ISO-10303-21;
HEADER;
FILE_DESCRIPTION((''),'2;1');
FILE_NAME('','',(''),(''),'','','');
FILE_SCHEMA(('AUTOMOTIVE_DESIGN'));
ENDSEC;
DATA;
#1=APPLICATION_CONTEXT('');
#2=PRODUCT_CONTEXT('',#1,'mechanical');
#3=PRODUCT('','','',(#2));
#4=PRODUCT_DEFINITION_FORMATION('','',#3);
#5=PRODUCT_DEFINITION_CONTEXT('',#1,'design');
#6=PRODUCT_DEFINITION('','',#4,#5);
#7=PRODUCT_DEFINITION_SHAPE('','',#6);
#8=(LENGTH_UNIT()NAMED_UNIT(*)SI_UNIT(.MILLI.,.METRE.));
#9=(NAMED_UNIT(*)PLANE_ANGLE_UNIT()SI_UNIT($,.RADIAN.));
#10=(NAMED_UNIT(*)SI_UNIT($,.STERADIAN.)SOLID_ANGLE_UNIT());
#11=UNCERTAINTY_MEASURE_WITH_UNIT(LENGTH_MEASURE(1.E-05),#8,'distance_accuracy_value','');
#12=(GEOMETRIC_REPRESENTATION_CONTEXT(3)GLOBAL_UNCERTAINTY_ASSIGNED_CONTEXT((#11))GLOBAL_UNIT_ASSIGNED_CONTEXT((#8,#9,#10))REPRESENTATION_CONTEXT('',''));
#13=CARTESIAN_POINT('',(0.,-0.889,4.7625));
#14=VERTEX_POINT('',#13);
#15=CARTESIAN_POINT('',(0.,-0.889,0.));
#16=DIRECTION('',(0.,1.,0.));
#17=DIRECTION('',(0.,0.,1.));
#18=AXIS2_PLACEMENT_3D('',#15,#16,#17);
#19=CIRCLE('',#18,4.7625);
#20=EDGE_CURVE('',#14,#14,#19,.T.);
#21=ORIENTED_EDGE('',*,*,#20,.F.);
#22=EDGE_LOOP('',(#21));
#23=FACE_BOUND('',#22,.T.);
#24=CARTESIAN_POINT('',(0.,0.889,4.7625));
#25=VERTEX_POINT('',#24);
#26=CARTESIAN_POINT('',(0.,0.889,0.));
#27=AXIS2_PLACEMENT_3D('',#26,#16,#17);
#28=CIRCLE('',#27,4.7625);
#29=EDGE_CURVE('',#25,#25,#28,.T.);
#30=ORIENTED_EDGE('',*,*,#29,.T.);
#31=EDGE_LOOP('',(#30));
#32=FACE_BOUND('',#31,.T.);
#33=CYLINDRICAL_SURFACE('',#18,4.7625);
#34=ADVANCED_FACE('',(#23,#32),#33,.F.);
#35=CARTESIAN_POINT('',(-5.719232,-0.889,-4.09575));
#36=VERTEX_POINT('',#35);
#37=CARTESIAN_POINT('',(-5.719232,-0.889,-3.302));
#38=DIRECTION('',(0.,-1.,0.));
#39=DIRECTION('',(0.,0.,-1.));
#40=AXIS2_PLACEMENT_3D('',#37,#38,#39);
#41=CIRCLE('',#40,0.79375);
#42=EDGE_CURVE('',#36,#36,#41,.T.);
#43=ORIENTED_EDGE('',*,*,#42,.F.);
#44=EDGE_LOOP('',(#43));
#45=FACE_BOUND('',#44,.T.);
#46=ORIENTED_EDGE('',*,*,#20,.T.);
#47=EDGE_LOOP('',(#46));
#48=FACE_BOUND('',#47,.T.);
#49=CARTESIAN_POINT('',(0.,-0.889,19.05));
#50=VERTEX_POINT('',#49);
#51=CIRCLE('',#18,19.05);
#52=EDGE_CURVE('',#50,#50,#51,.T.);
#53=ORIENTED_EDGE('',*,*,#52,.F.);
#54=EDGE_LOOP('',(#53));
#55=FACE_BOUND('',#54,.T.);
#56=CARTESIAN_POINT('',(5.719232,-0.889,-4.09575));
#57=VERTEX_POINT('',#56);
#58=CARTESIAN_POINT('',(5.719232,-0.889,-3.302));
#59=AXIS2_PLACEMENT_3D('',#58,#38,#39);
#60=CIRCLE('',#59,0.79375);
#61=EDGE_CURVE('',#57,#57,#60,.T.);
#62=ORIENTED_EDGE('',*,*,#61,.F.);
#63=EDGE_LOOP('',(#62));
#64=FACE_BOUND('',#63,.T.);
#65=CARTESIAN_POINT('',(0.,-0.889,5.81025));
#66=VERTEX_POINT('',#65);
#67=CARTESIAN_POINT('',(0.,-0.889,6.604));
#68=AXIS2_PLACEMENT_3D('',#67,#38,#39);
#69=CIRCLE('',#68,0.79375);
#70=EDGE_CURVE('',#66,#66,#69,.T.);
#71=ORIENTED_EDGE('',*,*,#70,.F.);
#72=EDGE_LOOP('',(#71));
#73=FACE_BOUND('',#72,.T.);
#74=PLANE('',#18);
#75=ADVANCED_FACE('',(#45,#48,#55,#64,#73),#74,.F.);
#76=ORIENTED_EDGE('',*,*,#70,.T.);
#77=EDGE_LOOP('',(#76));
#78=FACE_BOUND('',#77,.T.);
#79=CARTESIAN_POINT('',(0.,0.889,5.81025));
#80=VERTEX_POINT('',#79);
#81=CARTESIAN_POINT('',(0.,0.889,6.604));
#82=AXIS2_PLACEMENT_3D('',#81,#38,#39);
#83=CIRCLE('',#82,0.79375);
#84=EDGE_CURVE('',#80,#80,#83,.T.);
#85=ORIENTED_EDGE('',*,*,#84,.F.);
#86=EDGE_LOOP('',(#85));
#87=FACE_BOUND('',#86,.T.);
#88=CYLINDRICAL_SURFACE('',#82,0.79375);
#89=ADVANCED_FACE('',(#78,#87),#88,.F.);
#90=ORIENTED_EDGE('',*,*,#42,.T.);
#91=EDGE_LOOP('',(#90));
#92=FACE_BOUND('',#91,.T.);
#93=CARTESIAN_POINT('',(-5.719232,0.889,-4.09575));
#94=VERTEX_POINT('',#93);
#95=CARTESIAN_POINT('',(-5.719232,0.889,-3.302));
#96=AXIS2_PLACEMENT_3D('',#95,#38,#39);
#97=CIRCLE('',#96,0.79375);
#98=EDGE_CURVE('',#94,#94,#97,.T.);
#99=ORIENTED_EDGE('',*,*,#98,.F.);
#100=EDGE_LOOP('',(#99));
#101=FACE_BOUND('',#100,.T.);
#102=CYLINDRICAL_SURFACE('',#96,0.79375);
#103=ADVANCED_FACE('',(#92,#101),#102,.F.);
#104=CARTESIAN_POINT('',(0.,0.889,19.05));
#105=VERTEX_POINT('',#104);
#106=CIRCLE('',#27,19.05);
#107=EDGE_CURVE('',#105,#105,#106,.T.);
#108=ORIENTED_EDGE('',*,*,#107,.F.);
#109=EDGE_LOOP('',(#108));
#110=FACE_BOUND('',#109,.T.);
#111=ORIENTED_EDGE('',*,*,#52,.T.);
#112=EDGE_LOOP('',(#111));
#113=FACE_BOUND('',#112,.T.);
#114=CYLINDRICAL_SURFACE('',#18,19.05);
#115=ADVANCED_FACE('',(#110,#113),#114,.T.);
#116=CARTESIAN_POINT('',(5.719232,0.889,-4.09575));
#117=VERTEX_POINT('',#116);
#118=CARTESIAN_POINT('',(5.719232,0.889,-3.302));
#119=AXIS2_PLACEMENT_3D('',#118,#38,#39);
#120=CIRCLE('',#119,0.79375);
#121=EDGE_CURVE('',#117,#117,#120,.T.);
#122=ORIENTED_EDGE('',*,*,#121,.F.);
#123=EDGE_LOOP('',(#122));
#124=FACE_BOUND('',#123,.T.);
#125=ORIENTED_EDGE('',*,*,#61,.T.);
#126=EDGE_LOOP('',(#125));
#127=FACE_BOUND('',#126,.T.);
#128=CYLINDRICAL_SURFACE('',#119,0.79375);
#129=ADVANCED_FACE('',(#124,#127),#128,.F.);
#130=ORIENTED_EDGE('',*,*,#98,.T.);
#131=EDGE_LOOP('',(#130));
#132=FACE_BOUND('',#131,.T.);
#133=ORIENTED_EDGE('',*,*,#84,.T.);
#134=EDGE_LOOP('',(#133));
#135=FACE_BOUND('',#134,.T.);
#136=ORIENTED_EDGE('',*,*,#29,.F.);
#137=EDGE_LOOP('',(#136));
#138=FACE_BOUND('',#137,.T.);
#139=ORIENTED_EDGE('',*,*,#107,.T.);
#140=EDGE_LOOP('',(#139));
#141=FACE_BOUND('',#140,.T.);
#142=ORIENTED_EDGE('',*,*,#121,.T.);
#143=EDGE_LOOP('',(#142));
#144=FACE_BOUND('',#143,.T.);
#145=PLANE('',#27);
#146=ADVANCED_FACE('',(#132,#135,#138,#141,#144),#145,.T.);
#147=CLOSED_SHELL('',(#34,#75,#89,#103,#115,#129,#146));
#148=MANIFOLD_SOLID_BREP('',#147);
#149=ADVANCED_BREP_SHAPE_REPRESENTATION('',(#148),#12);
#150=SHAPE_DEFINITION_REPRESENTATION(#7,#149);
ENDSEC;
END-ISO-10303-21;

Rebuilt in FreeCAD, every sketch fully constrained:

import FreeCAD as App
import Part
import Sketcher

V = App.Vector
Q = App.Units.Quantity

doc = App.newDocument("Part")
body = doc.addObject("PartDesign::Body", "Body")

# Sketch on XZ plane
sketch1 = body.newObject("Sketcher::SketchObject", "Sketch")
sketch1.AttachmentSupport = (doc.getObject("XZ_Plane"), [""])
sketch1.MapMode = "FlatFace"
sketch1.addGeometry(Part.Circle(V(0, 0, 0), V(0, 0, 1), 19.05), False)
sketch1.addConstraint(Sketcher.Constraint("Coincident", 0, 3, -1, 1))
sketch1.addConstraint(Sketcher.Constraint("Diameter", 0, Q("1.5 in")))
pad1 = body.newObject("PartDesign::Pad", "Pad")
pad1.Profile = sketch1
pad1.Type = "TwoLengths"
pad1.Length = Q("0.035 in")
pad1.Length2 = Q("0.035 in")
pad1.Reversed = True

# Sketch on XZ plane
sketch2 = body.newObject("Sketcher::SketchObject", "Sketch001")
sketch2.AttachmentSupport = (doc.getObject("XZ_Plane"), [""])
sketch2.MapMode = "FlatFace"
sketch2.AttachmentOffset = App.Placement(V(0, 0, -0.035 * 25.4), App.Rotation())
sketch2.addGeometry(Part.Circle(V(0, 0, 0), V(0, 0, 1), 4.7625), False)
sketch2.addConstraint(Sketcher.Constraint("Coincident", 0, 3, -1, 1))
sketch2.addConstraint(Sketcher.Constraint("Diameter", 0, Q("0.375 in")))
pocket1 = body.newObject("PartDesign::Pocket", "Pocket")
pocket1.Profile = sketch2
pocket1.Type = "ThroughAll"
pocket1.Reversed = True

# Sketch on XZ plane
sketch3 = body.newObject("Sketcher::SketchObject", "Sketch002")
sketch3.AttachmentSupport = (doc.getObject("XZ_Plane"), [""])
sketch3.MapMode = "FlatFace"
sketch3.AttachmentOffset = App.Placement(V(0, 0, 0.035 * 25.4), App.Rotation())
sketch3.addGeometry(Part.Circle(V(0, 6.604, 0), V(0, 0, 1), 0.79375), False)
sketch3.addGeometry(Part.Circle(V(5.719232, -3.302, 0), V(0, 0, 1), 0.79375), False)
sketch3.addGeometry(Part.Circle(V(-5.719232, -3.302, 0), V(0, 0, 1), 0.79375), False)
sketch3.addConstraint(Sketcher.Constraint("Equal", 0, 1))
sketch3.addConstraint(Sketcher.Constraint("Equal", 1, 2))
sketch3.addConstraint(Sketcher.Constraint("Symmetric", 1, 3, 2, 3, -2))
sketch3.addConstraint(Sketcher.Constraint("PointOnObject", 0, 3, -2))
sketch3.addConstraint(Sketcher.Constraint("Diameter", 0, Q("0.0625 in")))
sketch3.addConstraint(Sketcher.Constraint("DistanceY", -1, 1, 0, 3, Q("0.26 in")))
sketch3.addConstraint(Sketcher.Constraint("DistanceY", 1, 3, -1, 1, Q("0.13 in")))
sketch3.addConstraint(Sketcher.Constraint("DistanceX", -1, 1, 1, 3, 5.719232))
pocket2 = body.newObject("PartDesign::Pocket", "Pocket001")
pocket2.Profile = sketch3
pocket2.Type = "ThroughAll"

doc.recompute()
